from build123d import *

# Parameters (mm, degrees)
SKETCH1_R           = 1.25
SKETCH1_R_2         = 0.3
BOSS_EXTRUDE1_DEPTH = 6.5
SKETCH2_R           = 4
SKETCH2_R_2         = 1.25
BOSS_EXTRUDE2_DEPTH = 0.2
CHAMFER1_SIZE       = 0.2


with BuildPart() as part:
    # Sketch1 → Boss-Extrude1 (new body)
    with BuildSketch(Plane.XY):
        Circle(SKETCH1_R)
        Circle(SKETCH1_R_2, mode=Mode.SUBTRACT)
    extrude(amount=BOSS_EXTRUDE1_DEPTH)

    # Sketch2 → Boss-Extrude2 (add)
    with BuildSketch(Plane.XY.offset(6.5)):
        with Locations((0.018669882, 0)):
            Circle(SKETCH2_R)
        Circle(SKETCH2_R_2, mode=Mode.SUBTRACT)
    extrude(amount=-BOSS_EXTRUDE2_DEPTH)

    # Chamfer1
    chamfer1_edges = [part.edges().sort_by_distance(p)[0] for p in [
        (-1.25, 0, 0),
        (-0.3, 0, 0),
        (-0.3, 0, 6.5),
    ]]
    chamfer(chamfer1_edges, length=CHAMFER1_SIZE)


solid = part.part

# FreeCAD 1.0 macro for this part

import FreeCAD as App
import Part
import Sketcher

V = App.Vector


def edges_at(feature, points):
    """Names of the edges that pass closest to the given points."""
    edges = feature.Shape.Edges
    near = lambda p: min(range(len(edges)), key=lambda i: edges[i].distToShape(Part.Vertex(*p))[0])
    return sorted({f"Edge{near(p) + 1}" for p in points})

doc = App.newDocument("Part")
body = doc.addObject("PartDesign::Body", "Body")

# Sketch on XY plane
sketch1 = body.newObject("Sketcher::SketchObject", "Sketch")
sketch1.AttachmentSupport = (doc.getObject("XY_Plane"), [""])
sketch1.MapMode = "FlatFace"
sketch1.addGeometry(Part.Circle(V(0, 0, 0), V(0, 0, 1), 1.25), False)
sketch1.addGeometry(Part.Circle(V(0, 0, 0), V(0, 0, 1), 0.3), False)
sketch1.addConstraint(Sketcher.Constraint("Coincident", 0, 3, -1, 1))
sketch1.addConstraint(Sketcher.Constraint("Coincident", 1, 3, -1, 1))
sketch1.addConstraint(Sketcher.Constraint("Diameter", 0, 2.5))
sketch1.addConstraint(Sketcher.Constraint("Diameter", 1, 0.6))
pad1 = body.newObject("PartDesign::Pad", "Pad")
pad1.Profile = sketch1
pad1.Length = 6.5

# Sketch on XY plane
sketch2 = body.newObject("Sketcher::SketchObject", "Sketch001")
sketch2.AttachmentSupport = (doc.getObject("XY_Plane"), [""])
sketch2.MapMode = "FlatFace"
sketch2.AttachmentOffset = App.Placement(V(0, 0, 6.5), App.Rotation())
sketch2.addGeometry(Part.Circle(V(0, 0, 0), V(0, 0, 1), 4), False)
sketch2.addGeometry(Part.Circle(V(0, 0, 0), V(0, 0, 1), 1.2), False)
sketch2.addConstraint(Sketcher.Constraint("Coincident", 1, 3, -1, 1))
sketch2.addConstraint(Sketcher.Constraint("PointOnObject", 0, 3, -1))
sketch2.addConstraint(Sketcher.Constraint("Diameter", 0, 8.0))
sketch2.addConstraint(Sketcher.Constraint("Diameter", 1, 2.5))
sketch2.addConstraint(Sketcher.Constraint("DistanceX", -1, 1, 0, 3, 0.01867))
pad2 = body.newObject("PartDesign::Pad", "Pad001")
pad2.Profile = sketch2
pad2.Length = 0.2
pad2.Reversed = True
doc.recompute()

chamfer = body.newObject("PartDesign::Chamfer", "Chamfer")
chamfer.Base = (pad2, edges_at(pad2, [(-1.25, 0, 0), (-0.3, 0, 0), (-0.3, 0, 6.5)]))
chamfer.Size = 0.2

doc.recompute()
